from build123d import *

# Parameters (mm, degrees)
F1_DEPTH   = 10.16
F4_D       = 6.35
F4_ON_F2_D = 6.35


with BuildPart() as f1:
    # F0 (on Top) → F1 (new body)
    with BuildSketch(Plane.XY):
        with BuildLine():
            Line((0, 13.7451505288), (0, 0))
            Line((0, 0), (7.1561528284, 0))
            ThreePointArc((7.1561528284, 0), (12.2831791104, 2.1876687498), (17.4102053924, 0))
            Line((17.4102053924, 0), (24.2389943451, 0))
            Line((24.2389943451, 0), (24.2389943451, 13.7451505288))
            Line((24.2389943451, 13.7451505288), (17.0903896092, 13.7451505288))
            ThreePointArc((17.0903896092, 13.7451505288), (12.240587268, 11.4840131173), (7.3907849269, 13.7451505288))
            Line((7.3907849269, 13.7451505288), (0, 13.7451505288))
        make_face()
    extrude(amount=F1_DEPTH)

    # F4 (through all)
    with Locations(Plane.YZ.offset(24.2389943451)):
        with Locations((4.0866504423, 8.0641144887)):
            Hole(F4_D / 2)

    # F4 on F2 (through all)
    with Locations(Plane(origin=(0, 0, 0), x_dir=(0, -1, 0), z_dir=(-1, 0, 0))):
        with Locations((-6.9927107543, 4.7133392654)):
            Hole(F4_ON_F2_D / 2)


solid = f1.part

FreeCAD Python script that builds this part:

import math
import FreeCAD as App
import Part
import Sketcher
Q = App.Units.Quantity

doc = App.newDocument("Part")
body = doc.addObject("PartDesign::Body", "Body")

# Sketch on XY plane
sketch1 = body.newObject("Sketcher::SketchObject", "Sketch")
sketch1.AttachmentSupport = (doc.getObject("XY_Plane"), [""])
sketch1.MapMode = "FlatFace"
sketch1.addGeometry(Part.LineSegment(App.Vector(0, 13.745151, 0), App.Vector(0, 0, 0)), False)
sketch1.addGeometry(Part.LineSegment(App.Vector(0, 0, 0), App.Vector(7.156153, 0, 0)), False)
sketch1.addGeometry(Part.ArcOfCircle(Part.Circle(App.Vector(12.283179, -4.914022, 0), App.Vector(0, 0, 1), 7.101691), math.radians(43.784746), math.radians(136.215254)), False)
sketch1.addGeometry(Part.LineSegment(App.Vector(17.410205, 0, 0), App.Vector(24.238994, 0, 0)), False)
sketch1.addGeometry(Part.LineSegment(App.Vector(24.238994, 0, 0), App.Vector(24.238994, 13.745151, 0)), False)
sketch1.addGeometry(Part.LineSegment(App.Vector(24.238994, 13.745151, 0), App.Vector(17.09039, 13.745151, 0)), False)
sketch1.addGeometry(Part.ArcOfCircle(Part.Circle(App.Vector(12.240587, 17.815633, 0), App.Vector(0, 0, 1), 6.33162), math.radians(-139.992963), math.radians(-40.007037)), False)
sketch1.addGeometry(Part.LineSegment(App.Vector(7.390785, 13.745151, 0), App.Vector(0, 13.745151, 0)), False)
sketch1.addConstraint(Sketcher.Constraint("Coincident", 0, 2, 1, 1))
sketch1.addConstraint(Sketcher.Constraint("Coincident", 1, 2, 2, 2))
sketch1.addConstraint(Sketcher.Constraint("Coincident", 2, 1, 3, 1))
sketch1.addConstraint(Sketcher.Constraint("Coincident", 3, 2, 4, 1))
sketch1.addConstraint(Sketcher.Constraint("Coincident", 4, 2, 5, 1))
sketch1.addConstraint(Sketcher.Constraint("Coincident", 5, 2, 6, 2))
sketch1.addConstraint(Sketcher.Constraint("Coincident", 6, 1, 7, 1))
sketch1.addConstraint(Sketcher.Constraint("Coincident", 7, 2, 0, 1))
sketch1.addConstraint(Sketcher.Constraint("Vertical", 0))
sketch1.addConstraint(Sketcher.Constraint("Horizontal", 1))
sketch1.addConstraint(Sketcher.Constraint("Horizontal", 3))
sketch1.addConstraint(Sketcher.Constraint("Vertical", 4))
sketch1.addConstraint(Sketcher.Constraint("Horizontal", 5))
sketch1.addConstraint(Sketcher.Constraint("Horizontal", 7))
sketch1.addConstraint(Sketcher.Constraint("Coincident", 0, 2, -1, 1))
sketch1.addConstraint(Sketcher.Constraint("PointOnObject", 2, 1, -1))
sketch1.addConstraint(Sketcher.Constraint("Horizontal", 5, 2, 6, 1))
sketch1.addConstraint(Sketcher.Constraint("Radius", 2, 7.101691))
sketch1.addConstraint(Sketcher.Constraint("Radius", 6, 6.33162))
sketch1.addConstraint(Sketcher.Constraint("DistanceX", 3, 1, 3, 2, 6.828789))
sketch1.addConstraint(Sketcher.Constraint("DistanceY", 0, 2, 0, 1, 13.745151))
sketch1.addConstraint(Sketcher.Constraint("DistanceX", 1, 1, 1, 2, 7.156153))
sketch1.addConstraint(Sketcher.Constraint("DistanceX", 5, 2, 5, 1, 7.148605))
sketch1.addConstraint(Sketcher.Constraint("DistanceX", 7, 2, 7, 1, 7.390785))
sketch1.addConstraint(Sketcher.Constraint("DistanceX", -1, 1, 2, 3, 12.283179))
pad1 = body.newObject("PartDesign::Pad", "Pad")
pad1.Profile = sketch1
pad1.Length = Q("0.4 in")

# Sketch on YZ plane
sketch2 = body.newObject("Sketcher::SketchObject", "Sketch001")
sketch2.AttachmentSupport = (doc.getObject("YZ_Plane"), [""])
sketch2.MapMode = "FlatFace"
sketch2.AttachmentOffset = App.Placement(App.Vector(0, 0, 24.238994), App.Rotation())
sketch2.addGeometry(Part.Circle(App.Vector(4.08665, 8.064114, 0), App.Vector(0, 0, 1), 3.175), False)
sketch2.addConstraint(Sketcher.Constraint("Diameter", 0, Q("0.25 in")))
sketch2.addConstraint(Sketcher.Constraint("DistanceX", -1, 1, 0, 3, 4.08665))
sketch2.addConstraint(Sketcher.Constraint("DistanceY", -1, 1, 0, 3, 8.064114))
doc.recompute()
hole = body.newObject("PartDesign::Hole", "Hole")
hole.Profile = sketch2
hole.ThreadType = "None"
hole.Diameter = Q("0.25 in")
hole.DepthType = "ThroughAll"

# Sketch on YZ plane
sketch3 = body.newObject("Sketcher::SketchObject", "Sketch002")
sketch3.AttachmentSupport = (doc.getObject("YZ_Plane"), [""])
sketch3.MapMode = "FlatFace"
sketch3.addGeometry(Part.Circle(App.Vector(6.992711, 4.713339, 0), App.Vector(0, 0, 1), 3.175), False)
sketch3.addConstraint(Sketcher.Constraint("Diameter", 0, Q("0.25 in")))
sketch3.addConstraint(Sketcher.Constraint("DistanceX", -1, 1, 0, 3, 6.992711))
sketch3.addConstraint(Sketcher.Constraint("DistanceY", -1, 1, 0, 3, 4.713339))
doc.recompute()
hole2 = body.newObject("PartDesign::Hole", "Hole001")
hole2.Profile = sketch3
hole2.ThreadType = "None"
hole2.Diameter = Q("0.25 in")
hole2.DepthType = "ThroughAll"
hole2.Reversed = True

doc.recompute()
